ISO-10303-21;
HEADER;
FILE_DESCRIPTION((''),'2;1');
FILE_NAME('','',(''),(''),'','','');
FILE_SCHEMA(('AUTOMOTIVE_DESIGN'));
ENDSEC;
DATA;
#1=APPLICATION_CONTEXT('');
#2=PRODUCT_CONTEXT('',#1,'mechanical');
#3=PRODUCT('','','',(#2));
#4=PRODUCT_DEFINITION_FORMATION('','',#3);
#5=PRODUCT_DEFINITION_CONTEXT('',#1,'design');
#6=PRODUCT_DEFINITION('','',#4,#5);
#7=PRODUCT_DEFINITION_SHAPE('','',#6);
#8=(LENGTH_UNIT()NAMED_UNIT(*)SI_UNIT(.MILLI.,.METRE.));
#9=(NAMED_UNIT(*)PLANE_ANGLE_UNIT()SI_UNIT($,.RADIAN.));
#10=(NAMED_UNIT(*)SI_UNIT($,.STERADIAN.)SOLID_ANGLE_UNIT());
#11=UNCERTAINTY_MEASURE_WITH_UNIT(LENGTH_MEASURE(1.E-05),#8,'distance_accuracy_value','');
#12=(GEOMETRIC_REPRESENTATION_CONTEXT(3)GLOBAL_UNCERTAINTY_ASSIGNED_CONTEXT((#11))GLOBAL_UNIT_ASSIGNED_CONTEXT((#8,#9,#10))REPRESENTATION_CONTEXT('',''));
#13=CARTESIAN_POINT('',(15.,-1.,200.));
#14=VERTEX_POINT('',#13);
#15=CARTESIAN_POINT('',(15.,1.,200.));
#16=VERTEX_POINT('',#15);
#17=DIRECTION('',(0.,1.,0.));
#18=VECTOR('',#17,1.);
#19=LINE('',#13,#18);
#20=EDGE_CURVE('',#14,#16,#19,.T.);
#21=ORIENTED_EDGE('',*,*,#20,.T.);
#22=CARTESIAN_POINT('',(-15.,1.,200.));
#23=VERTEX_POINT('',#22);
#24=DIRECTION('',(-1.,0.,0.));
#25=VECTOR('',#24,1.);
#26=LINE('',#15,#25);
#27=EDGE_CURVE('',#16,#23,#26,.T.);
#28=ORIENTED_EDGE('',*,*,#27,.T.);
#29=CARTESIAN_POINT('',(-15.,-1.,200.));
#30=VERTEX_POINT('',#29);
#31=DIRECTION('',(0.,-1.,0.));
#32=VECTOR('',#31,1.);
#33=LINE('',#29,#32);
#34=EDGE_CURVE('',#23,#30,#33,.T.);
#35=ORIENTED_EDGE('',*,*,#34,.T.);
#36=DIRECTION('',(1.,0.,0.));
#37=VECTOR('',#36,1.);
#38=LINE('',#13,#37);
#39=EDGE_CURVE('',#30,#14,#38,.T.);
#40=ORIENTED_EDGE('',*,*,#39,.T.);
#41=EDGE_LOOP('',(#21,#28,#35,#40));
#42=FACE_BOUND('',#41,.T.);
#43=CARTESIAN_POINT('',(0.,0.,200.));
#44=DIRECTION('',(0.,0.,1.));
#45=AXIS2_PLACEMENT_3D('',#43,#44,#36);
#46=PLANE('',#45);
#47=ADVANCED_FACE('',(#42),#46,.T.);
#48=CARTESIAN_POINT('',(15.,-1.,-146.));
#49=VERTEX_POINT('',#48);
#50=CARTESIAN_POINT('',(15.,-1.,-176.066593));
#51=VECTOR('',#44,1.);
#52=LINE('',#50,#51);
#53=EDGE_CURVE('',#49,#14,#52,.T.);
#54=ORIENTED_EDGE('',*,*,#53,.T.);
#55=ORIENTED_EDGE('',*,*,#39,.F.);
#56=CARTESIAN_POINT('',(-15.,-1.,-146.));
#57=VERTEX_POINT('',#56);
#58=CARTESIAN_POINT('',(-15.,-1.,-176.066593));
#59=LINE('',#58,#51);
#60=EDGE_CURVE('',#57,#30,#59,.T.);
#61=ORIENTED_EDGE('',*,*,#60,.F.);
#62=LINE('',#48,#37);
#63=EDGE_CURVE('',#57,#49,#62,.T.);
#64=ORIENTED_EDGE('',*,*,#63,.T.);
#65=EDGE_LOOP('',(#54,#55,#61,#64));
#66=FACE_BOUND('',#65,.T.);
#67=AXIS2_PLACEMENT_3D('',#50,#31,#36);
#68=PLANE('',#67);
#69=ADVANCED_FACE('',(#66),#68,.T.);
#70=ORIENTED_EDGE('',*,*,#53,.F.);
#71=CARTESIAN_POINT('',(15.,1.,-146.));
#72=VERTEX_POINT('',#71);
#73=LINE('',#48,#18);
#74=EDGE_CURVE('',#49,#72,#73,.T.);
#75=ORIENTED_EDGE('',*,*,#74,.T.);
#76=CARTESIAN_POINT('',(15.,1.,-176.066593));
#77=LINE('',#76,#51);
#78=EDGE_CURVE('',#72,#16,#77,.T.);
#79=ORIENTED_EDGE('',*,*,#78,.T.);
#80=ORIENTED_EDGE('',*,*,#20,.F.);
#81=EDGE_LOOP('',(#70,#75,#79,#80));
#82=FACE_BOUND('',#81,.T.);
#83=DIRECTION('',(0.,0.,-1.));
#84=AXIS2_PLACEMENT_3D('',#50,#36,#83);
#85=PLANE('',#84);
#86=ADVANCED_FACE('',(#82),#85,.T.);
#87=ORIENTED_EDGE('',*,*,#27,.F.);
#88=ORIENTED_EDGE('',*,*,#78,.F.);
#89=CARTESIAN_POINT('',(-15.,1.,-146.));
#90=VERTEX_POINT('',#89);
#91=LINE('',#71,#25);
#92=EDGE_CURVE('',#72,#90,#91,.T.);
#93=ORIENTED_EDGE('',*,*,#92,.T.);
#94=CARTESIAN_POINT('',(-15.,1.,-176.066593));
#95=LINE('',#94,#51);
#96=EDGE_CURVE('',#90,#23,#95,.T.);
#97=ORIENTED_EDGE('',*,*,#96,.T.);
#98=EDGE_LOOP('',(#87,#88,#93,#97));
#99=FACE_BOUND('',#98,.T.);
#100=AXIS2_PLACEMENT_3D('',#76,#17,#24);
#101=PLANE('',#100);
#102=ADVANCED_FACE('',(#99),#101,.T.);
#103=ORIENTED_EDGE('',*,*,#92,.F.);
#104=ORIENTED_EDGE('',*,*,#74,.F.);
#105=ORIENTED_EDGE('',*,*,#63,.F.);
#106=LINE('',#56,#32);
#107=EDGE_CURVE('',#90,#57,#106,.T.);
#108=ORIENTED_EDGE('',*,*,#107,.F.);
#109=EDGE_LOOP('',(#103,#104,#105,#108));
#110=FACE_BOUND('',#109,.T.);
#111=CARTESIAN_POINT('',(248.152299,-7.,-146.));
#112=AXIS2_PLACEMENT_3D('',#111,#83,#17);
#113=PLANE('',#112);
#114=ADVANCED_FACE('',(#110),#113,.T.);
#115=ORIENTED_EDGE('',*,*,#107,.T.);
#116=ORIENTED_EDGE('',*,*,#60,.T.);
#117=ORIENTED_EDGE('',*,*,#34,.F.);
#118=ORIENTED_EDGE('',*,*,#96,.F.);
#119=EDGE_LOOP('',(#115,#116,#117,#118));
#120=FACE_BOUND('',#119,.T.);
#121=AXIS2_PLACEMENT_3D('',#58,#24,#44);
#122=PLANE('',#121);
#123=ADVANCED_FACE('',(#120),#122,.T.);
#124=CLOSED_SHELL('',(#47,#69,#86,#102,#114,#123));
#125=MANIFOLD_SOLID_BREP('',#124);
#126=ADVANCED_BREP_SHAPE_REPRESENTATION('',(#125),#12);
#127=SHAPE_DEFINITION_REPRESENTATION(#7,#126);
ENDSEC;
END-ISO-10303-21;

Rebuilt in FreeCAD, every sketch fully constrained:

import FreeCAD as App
import Part
import Sketcher

V = App.Vector

doc = App.newDocument("Part")
body = doc.addObject("PartDesign::Body", "Body")

# Sketch on XY plane
sketch1 = body.newObject("Sketcher::SketchObject", "Sketch")
sketch1.AttachmentSupport = (doc.getObject("XY_Plane"), [""])
sketch1.MapMode = "FlatFace"
sketch1.addGeometry([
    Part.LineSegment(V(-15, 1, 0), V(-15, -1, 0)),
    Part.LineSegment(V(-15, -1, 0), V(15, -1, 0)),
    Part.LineSegment(V(15, -1, 0), V(15, 1, 0)),
    Part.LineSegment(V(15, 1, 0), V(-15, 1, 0)),
], False)
sketch1.addConstraint([
    Sketcher.Constraint("Coincident", 0, 2, 1, 1),
    Sketcher.Constraint("Coincident", 1, 2, 2, 1),
    Sketcher.Constraint("Coincident", 2, 2, 3, 1),
    Sketcher.Constraint("Coincident", 3, 2, 0, 1),
    Sketcher.Constraint("Vertical", 0),
    Sketcher.Constraint("Horizontal", 1),
    Sketcher.Constraint("Vertical", 2),
    Sketcher.Constraint("Horizontal", 3),
    Sketcher.Constraint("Symmetric", 0, 2, 2, 2, -1, 1),
    Sketcher.Constraint("DistanceX", 1, 1, 1, 2, 30.0),
    Sketcher.Constraint("DistanceY", 0, 2, 0, 1, 2.0),
])
pad1 = body.newObject("PartDesign::Pad", "Pad")
pad1.Profile = sketch1
pad1.Type = "TwoLengths"
pad1.Length = 200
pad1.Length2 = 146

doc.recompute()
